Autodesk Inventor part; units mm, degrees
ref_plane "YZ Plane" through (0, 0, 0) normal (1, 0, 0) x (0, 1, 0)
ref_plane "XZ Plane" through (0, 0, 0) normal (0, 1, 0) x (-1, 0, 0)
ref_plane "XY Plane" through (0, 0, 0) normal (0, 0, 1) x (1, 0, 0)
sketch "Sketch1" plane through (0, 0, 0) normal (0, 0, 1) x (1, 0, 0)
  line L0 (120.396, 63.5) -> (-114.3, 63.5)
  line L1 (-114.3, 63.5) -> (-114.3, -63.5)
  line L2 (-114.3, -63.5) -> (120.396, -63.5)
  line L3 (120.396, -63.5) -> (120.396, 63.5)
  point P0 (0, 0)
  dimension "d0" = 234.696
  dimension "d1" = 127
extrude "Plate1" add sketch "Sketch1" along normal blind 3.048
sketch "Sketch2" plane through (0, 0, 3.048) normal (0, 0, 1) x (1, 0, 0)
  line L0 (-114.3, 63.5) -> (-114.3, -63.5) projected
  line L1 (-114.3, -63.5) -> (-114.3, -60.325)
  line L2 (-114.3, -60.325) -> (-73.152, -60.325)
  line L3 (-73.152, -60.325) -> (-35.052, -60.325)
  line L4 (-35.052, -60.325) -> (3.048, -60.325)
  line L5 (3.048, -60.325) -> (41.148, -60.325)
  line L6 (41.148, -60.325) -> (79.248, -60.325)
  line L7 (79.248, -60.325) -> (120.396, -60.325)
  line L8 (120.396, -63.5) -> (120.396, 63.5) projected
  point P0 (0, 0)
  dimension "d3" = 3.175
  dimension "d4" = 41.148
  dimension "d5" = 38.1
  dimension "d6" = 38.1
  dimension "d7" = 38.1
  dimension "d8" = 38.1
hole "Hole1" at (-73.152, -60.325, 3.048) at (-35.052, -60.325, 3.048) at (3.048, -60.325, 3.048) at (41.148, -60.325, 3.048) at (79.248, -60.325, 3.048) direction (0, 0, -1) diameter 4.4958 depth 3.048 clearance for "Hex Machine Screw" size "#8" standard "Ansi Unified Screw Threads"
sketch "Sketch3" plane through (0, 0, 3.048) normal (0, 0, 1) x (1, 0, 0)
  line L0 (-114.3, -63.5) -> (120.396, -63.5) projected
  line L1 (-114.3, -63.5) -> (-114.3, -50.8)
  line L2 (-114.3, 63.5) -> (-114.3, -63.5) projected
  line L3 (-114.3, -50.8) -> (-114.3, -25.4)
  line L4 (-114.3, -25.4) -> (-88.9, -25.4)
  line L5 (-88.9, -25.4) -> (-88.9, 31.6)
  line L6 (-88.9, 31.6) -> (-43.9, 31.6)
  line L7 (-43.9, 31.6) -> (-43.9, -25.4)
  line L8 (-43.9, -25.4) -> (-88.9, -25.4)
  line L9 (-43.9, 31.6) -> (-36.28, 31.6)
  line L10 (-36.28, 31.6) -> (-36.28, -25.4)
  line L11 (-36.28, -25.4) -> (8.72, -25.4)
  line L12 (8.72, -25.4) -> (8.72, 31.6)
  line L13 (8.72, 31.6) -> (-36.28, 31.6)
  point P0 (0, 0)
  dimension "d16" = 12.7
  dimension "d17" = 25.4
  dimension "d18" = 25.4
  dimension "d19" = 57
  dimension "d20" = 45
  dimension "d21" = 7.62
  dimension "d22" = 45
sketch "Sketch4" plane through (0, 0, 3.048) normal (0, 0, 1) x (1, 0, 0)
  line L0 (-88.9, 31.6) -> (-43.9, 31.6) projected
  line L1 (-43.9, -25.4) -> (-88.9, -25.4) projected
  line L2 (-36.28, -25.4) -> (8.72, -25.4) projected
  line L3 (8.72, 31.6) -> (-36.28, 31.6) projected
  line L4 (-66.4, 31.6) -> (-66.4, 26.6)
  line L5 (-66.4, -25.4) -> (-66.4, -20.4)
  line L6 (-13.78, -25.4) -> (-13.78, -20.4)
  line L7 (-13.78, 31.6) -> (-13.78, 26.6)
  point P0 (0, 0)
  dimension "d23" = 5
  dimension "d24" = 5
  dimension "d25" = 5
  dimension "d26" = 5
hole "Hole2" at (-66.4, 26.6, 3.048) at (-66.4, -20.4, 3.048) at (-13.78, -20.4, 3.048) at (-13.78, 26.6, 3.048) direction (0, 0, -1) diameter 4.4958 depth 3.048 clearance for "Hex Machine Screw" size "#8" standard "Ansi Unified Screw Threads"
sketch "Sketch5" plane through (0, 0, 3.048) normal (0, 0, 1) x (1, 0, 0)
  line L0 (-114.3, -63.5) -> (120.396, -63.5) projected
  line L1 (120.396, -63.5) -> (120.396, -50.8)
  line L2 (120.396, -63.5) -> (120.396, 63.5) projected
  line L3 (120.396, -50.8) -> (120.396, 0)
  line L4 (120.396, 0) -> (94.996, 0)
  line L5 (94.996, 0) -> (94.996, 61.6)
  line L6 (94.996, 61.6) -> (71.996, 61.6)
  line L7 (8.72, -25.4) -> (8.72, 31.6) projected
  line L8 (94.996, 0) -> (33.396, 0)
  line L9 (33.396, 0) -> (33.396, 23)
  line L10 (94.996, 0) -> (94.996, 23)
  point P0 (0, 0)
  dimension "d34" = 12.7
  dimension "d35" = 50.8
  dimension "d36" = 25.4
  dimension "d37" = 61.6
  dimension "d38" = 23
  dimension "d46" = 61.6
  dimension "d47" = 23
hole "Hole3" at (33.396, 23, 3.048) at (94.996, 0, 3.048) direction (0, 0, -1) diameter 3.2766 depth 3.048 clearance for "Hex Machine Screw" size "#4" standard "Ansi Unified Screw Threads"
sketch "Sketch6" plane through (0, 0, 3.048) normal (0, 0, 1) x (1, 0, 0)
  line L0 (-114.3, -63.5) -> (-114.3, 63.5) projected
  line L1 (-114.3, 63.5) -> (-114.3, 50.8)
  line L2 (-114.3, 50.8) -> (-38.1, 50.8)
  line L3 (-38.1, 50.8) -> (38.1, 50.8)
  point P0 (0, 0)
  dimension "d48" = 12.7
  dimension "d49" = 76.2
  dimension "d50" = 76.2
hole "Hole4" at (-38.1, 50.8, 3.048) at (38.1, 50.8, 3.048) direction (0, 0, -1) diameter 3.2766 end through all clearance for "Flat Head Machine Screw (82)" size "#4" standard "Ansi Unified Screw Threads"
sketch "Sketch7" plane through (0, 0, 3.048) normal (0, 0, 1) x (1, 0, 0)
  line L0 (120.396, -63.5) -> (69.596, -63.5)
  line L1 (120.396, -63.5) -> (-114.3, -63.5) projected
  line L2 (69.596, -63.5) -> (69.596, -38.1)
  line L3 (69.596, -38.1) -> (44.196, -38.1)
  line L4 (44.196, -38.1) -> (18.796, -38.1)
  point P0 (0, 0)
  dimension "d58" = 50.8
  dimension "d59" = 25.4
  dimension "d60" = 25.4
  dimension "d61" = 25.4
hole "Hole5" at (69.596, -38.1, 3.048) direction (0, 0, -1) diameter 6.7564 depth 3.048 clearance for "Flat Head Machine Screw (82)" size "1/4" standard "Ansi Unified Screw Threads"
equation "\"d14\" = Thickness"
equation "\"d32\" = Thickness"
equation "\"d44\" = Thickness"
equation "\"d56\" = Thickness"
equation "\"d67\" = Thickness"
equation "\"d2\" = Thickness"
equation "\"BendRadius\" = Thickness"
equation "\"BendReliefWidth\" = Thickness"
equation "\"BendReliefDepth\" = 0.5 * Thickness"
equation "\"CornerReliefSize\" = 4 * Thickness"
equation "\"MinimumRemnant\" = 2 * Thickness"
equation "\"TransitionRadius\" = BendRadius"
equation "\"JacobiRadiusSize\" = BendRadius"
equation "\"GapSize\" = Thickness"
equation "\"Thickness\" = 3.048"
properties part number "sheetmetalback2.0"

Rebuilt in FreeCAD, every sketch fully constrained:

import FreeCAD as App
import Part
import Sketcher
from FreeCAD import Vector
Q = App.Units.Quantity


def add_polygon(sketch, points):
    """Adds a closed chain of lines whose ends are joined by coincident constraints."""
    first, n = sketch.GeometryCount, len(points)
    for a, b in zip(points, points[1:] + points[:1]):
        sketch.addGeometry(Part.LineSegment(App.Vector(*a, 0), App.Vector(*b, 0)), False)
    for i in range(n):
        sketch.addConstraint(Sketcher.Constraint("Coincident", first + i, 2, first + (i + 1) % n, 1))

doc = App.newDocument("Part")
body = doc.addObject("PartDesign::Body", "Body")

# Sketch on XY plane
sketch1 = doc.addObject("Sketcher::SketchObject", "Sketch")
body.addObject(sketch1)
sketch1.AttachmentSupport = (doc.XY_Plane, [""])
sketch1.MapMode = "FlatFace"
add_polygon(sketch1, [(120, -64), (120, 64), (-114, 64), (-114, -64)])  # lines 0-3
sketch1.addConstraint(Sketcher.Constraint("Vertical", 0))
sketch1.addConstraint(Sketcher.Constraint("Horizontal", 1))
sketch1.addConstraint(Sketcher.Constraint("Vertical", 2))
sketch1.addConstraint(Sketcher.Constraint("Horizontal", 3))
sketch1.addConstraint(Sketcher.Constraint("DistanceY", 0, 1, 0, 2, Q("5 in")))
sketch1.addConstraint(Sketcher.Constraint("DistanceX", 1, 2, 1, 1, Q("9.24 in")))
sketch1.addConstraint(Sketcher.Constraint("DistanceY", -1, 1, 0, 2, Q("2.5 in")))
sketch1.addConstraint(Sketcher.Constraint("DistanceX", 1, 2, -1, 1, Q("4.5 in")))
pad1 = doc.addObject("PartDesign::Pad", "Pad")
body.addObject(pad1)
pad1.Profile = sketch1
pad1.Length = Q("0.12 in")

# Sketch on XY plane
sketch2 = doc.addObject("Sketcher::SketchObject", "Sketch001")
body.addObject(sketch2)
sketch2.AttachmentSupport = (doc.XY_Plane, [""])
sketch2.MapMode = "FlatFace"
sketch2.AttachmentOffset = App.Placement(Vector(0, 0, 0.12 * 25.4), App.Rotation())
sketch2.addGeometry(Part.Circle(Vector(-73.2, -60.3, 0), Vector(0, 0, 1), 2.2), False)
sketch2.addGeometry(Part.Circle(Vector(-35.1, -60.3, 0), Vector(0, 0, 1), 2.2), False)
sketch2.addGeometry(Part.Circle(Vector(3, -60.3, 0), Vector(0, 0, 1), 2.2), False)
sketch2.addGeometry(Part.Circle(Vector(41.1, -60.3, 0), Vector(0, 0, 1), 2.2), False)
sketch2.addGeometry(Part.Circle(Vector(79.2, -60.3, 0), Vector(0, 0, 1), 2.2), False)
sketch2.addConstraint(Sketcher.Constraint("Equal", 0, 1))
sketch2.addConstraint(Sketcher.Constraint("Equal", 1, 2))
sketch2.addConstraint(Sketcher.Constraint("Equal", 2, 3))
sketch2.addConstraint(Sketcher.Constraint("Equal", 3, 4))
sketch2.addConstraint(Sketcher.Constraint("Horizontal", 0, 3, 1, 3))
sketch2.addConstraint(Sketcher.Constraint("Horizontal", 1, 3, 2, 3))
sketch2.addConstraint(Sketcher.Constraint("Horizontal", 2, 3, 3, 3))
sketch2.addConstraint(Sketcher.Constraint("Horizontal", 3, 3, 4, 3))
sketch2.addConstraint(Sketcher.Constraint("Diameter", 0, Q("0.177 in")))
sketch2.addConstraint(Sketcher.Constraint("DistanceX", 0, 3, 2, 3, Q("3 in")))
sketch2.addConstraint(Sketcher.Constraint("DistanceX", 1, 3, 3, 3, Q("3 in")))
sketch2.addConstraint(Sketcher.Constraint("DistanceX", 2, 3, 4, 3, Q("3 in")))
sketch2.addConstraint(Sketcher.Constraint("DistanceX", 0, 3, 1, 3, Q("1.5 in")))
sketch2.addConstraint(Sketcher.Constraint("DistanceX", 0, 3, -1, 1, Q("2.88 in")))
sketch2.addConstraint(Sketcher.Constraint("DistanceY", 0, 3, -1, 1, Q("2.375 in")))
doc.recompute()
hole = doc.addObject("PartDesign::Hole", "Hole")
body.addObject(hole)
hole.Profile = sketch2
hole.ThreadType = "None"
hole.Diameter = Q("0.177 in")
hole.DepthType = "Dimension"
hole.Depth = Q("0.12 in")
hole.DrillPoint = "Flat"

# Sketch on XY plane
sketch3 = doc.addObject("Sketcher::SketchObject", "Sketch002")
body.addObject(sketch3)
sketch3.AttachmentSupport = (doc.XY_Plane, [""])
sketch3.MapMode = "FlatFace"
sketch3.AttachmentOffset = App.Placement(Vector(0, 0, 0.12 * 25.4), App.Rotation())
sketch3.addGeometry(Part.Circle(Vector(-66.4, 26.6, 0), Vector(0, 0, 1), 2.2), False)
sketch3.addGeometry(Part.Circle(Vector(-66.4, -20.4, 0), Vector(0, 0, 1), 2.2), False)
sketch3.addGeometry(Part.Circle(Vector(-13.8, -20.4, 0), Vector(0, 0, 1), 2.2), False)
sketch3.addGeometry(Part.Circle(Vector(-13.8, 26.6, 0), Vector(0, 0, 1), 2.2), False)
sketch3.addConstraint(Sketcher.Constraint("Equal", 0, 1))
sketch3.addConstraint(Sketcher.Constraint("Equal", 1, 2))
sketch3.addConstraint(Sketcher.Constraint("Equal", 2, 3))
sketch3.addConstraint(Sketcher.Constraint("Horizontal", 1, 3, 2, 3))
sketch3.addConstraint(Sketcher.Constraint("Horizontal", 0, 3, 3, 3))
sketch3.addConstraint(Sketcher.Constraint("Vertical", 0, 3, 1, 3))
sketch3.addConstraint(Sketcher.Constraint("Vertical", 2, 3, 3, 3))
sketch3.addConstraint(Sketcher.Constraint("Diameter", 0, Q("0.177 in")))
sketch3.addConstraint(Sketcher.Constraint("DistanceY", 1, 3, 0, 3, Q("1.8504 in")))
sketch3.addConstraint(Sketcher.Constraint("DistanceX", 0, 3, -1, 1, 66.4))
sketch3.addConstraint(Sketcher.Constraint("DistanceY", -1, 1, 0, 3, 26.6))
sketch3.addConstraint(Sketcher.Constraint("DistanceX", 2, 3, -1, 1, 13.78))
doc.recompute()
hole2 = doc.addObject("PartDesign::Hole", "Hole001")
body.addObject(hole2)
hole2.Profile = sketch3
hole2.ThreadType = "None"
hole2.Diameter = Q("0.177 in")
hole2.DepthType = "Dimension"
hole2.Depth = Q("0.12 in")
hole2.DrillPoint = "Flat"

# Sketch on XY plane
sketch4 = doc.addObject("Sketcher::SketchObject", "Sketch003")
body.addObject(sketch4)
sketch4.AttachmentSupport = (doc.XY_Plane, [""])
sketch4.MapMode = "FlatFace"
sketch4.AttachmentOffset = App.Placement(Vector(0, 0, 0.12 * 25.4), App.Rotation())
sketch4.addGeometry(Part.Circle(Vector(33.4, 23, 0), Vector(0, 0, 1), 1.6), False)
sketch4.addGeometry(Part.Circle(Vector(95, 0, 0), Vector(0, 0, 1), 1.6), False)
sketch4.addConstraint(Sketcher.Constraint("Equal", 0, 1))
sketch4.addConstraint(Sketcher.Constraint("PointOnObject", 1, 3, -1))
sketch4.addConstraint(Sketcher.Constraint("Diameter", 0, Q("0.129 in")))
sketch4.addConstraint(Sketcher.Constraint("DistanceX", -1, 1, 1, 3, Q("3.74 in")))
sketch4.addConstraint(Sketcher.Constraint("DistanceX", -1, 1, 0, 3, Q("1.3148 in")))
sketch4.addConstraint(Sketcher.Constraint("DistanceY", -1, 1, 0, 3, Q("0.9055 in")))
doc.recompute()
hole3 = doc.addObject("PartDesign::Hole", "Hole002")
body.addObject(hole3)
hole3.Profile = sketch4
hole3.ThreadType = "None"
hole3.Diameter = Q("0.129 in")
hole3.DepthType = "Dimension"
hole3.Depth = Q("0.12 in")
hole3.DrillPoint = "Flat"

# Sketch on XY plane
sketch5 = doc.addObject("Sketcher::SketchObject", "Sketch004")
body.addObject(sketch5)
sketch5.AttachmentSupport = (doc.XY_Plane, [""])
sketch5.MapMode = "FlatFace"
sketch5.AttachmentOffset = App.Placement(Vector(0, 0, 0.12 * 25.4), App.Rotation())
sketch5.addGeometry(Part.Circle(Vector(-38.1, 50.8, 0), Vector(0, 0, 1), 1.6), False)
sketch5.addGeometry(Part.Circle(Vector(38.1, 50.8, 0), Vector(0, 0, 1), 1.6), False)
sketch5.addConstraint(Sketcher.Constraint("Equal", 0, 1))
sketch5.addConstraint(Sketcher.Constraint("Symmetric", 0, 3, 1, 3, -2))
sketch5.addConstraint(Sketcher.Constraint("Diameter", 0, Q("0.129 in")))
sketch5.addConstraint(Sketcher.Constraint("DistanceY", -1, 1, 0, 3, Q("2 in")))
sketch5.addConstraint(Sketcher.Constraint("DistanceX", 0, 3, 1, 3, Q("3 in")))
doc.recompute()
hole4 = doc.addObject("PartDesign::Hole", "Hole003")
body.addObject(hole4)
hole4.Profile = sketch5
hole4.ThreadType = "None"
hole4.Diameter = Q("0.129 in")
hole4.DepthType = "ThroughAll"

# Sketch on XY plane
sketch6 = doc.addObject("Sketcher::SketchObject", "Sketch005")
body.addObject(sketch6)
sketch6.AttachmentSupport = (doc.XY_Plane, [""])
sketch6.MapMode = "FlatFace"
sketch6.AttachmentOffset = App.Placement(Vector(0, 0, 0.12 * 25.4), App.Rotation())
sketch6.addGeometry(Part.Circle(Vector(69.6, -38.1, 0), Vector(0, 0, 1), 3.4), False)
sketch6.addConstraint(Sketcher.Constraint("Diameter", 0, Q("0.266 in")))
sketch6.addConstraint(Sketcher.Constraint("DistanceY", 0, 3, -1, 1, Q("1.5 in")))
sketch6.addConstraint(Sketcher.Constraint("DistanceX", -1, 1, 0, 3, Q("2.74 in")))
doc.recompute()
hole5 = doc.addObject("PartDesign::Hole", "Hole004")
body.addObject(hole5)
hole5.Profile = sketch6
hole5.ThreadType = "None"
hole5.Diameter = Q("0.266 in")
hole5.DepthType = "Dimension"
hole5.Depth = Q("0.12 in")
hole5.DrillPoint = "Flat"

doc.recompute()
